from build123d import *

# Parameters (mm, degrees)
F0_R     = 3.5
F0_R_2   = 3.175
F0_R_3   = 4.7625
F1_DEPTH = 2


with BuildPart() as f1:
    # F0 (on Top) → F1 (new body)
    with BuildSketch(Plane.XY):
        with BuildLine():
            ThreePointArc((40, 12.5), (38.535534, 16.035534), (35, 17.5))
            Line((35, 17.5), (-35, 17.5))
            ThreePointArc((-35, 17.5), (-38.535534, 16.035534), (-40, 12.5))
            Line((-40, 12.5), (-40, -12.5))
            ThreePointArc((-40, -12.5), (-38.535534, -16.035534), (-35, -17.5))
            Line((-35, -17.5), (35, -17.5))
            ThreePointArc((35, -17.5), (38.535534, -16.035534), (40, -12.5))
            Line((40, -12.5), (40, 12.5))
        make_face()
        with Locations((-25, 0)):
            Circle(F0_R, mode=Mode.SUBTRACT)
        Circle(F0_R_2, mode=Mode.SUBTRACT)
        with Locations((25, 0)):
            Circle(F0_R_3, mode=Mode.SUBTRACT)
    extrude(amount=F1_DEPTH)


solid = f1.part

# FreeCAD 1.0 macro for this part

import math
import FreeCAD as App
import Part
import Sketcher

V = App.Vector
Q = App.Units.Quantity

doc = App.newDocument("Part")
params = doc.addObject("Spreadsheet::Sheet", "Params")
for row, (alias, value) in enumerate([
    ("sketch1_diameter", "7 mm"),
    ("sketch1_radius", "5 mm"),
    ("sketch1_diameter2", "6.35 mm"),
    ("sketch1_width", "70 mm"),
    ("sketch1_height", "25 mm"),
    ("pad1_length", "2 mm"),
], start=1):
    params.set(f"A{row}", alias)
    params.set(f"B{row}", "=" + value)
    params.setAlias(f"B{row}", alias)

body = doc.addObject("PartDesign::Body", "Body")

# Sketch on XY plane
sketch1 = doc.addObject("Sketcher::SketchObject", "Sketch")
body.addObject(sketch1)
sketch1.AttachmentSupport = (doc.XY_Plane, [""])
sketch1.MapMode = "FlatFace"
sketch1.addGeometry(Part.ArcOfCircle(Part.Circle(V(35, 12.5, 0), V(0, 0, 1), 5), math.radians(-0.000004), math.radians(90.000004)), False)
sketch1.addGeometry(Part.LineSegment(V(35, 17.5, 0), V(-35, 17.5, 0)), False)
sketch1.addGeometry(Part.ArcOfCircle(Part.Circle(V(-35, 12.5, 0), V(0, 0, 1), 5), math.radians(89.999996), math.radians(180.000004)), False)
sketch1.addGeometry(Part.LineSegment(V(-40, 12.5, 0), V(-40, -12.5, 0)), False)
sketch1.addGeometry(Part.ArcOfCircle(Part.Circle(V(-35, -12.5, 0), V(0, 0, 1), 5), math.radians(179.999996), math.radians(270.000004)), False)
sketch1.addGeometry(Part.LineSegment(V(-35, -17.5, 0), V(35, -17.5, 0)), False)
sketch1.addGeometry(Part.ArcOfCircle(Part.Circle(V(35, -12.5, 0), V(0, 0, 1), 5), math.radians(-90.000004), math.radians(0.000004)), False)
sketch1.addGeometry(Part.LineSegment(V(40, -12.5, 0), V(40, 12.5, 0)), False)
sketch1.addGeometry(Part.Circle(V(-25, 0, 0), V(0, 0, 1), 3.5), False)
sketch1.addGeometry(Part.Circle(V(0, 0, 0), V(0, 0, 1), 3.175), False)
sketch1.addGeometry(Part.Circle(V(25, 0, 0), V(0, 0, 1), 4.7625), False)
sketch1.addConstraint(Sketcher.Constraint("Tangent", 0, 2, 1, 1))
sketch1.addConstraint(Sketcher.Constraint("Tangent", 1, 2, 2, 1))
sketch1.addConstraint(Sketcher.Constraint("Tangent", 2, 2, 3, 1))
sketch1.addConstraint(Sketcher.Constraint("Tangent", 3, 2, 4, 1))
sketch1.addConstraint(Sketcher.Constraint("Tangent", 4, 2, 5, 1))
sketch1.addConstraint(Sketcher.Constraint("Tangent", 5, 2, 6, 1))
sketch1.addConstraint(Sketcher.Constraint("Tangent", 6, 2, 7, 1))
sketch1.addConstraint(Sketcher.Constraint("Tangent", 7, 2, 0, 1))
sketch1.addConstraint(Sketcher.Constraint("Horizontal", 1))
sketch1.addConstraint(Sketcher.Constraint("Vertical", 3))
sketch1.addConstraint(Sketcher.Constraint("Horizontal", 5))
sketch1.addConstraint(Sketcher.Constraint("Vertical", 7))
sketch1.addConstraint(Sketcher.Constraint("Coincident", 9, 3, -1, 1))
sketch1.addConstraint(Sketcher.Constraint("Equal", 0, 2))
sketch1.addConstraint(Sketcher.Constraint("Equal", 2, 4))
sketch1.addConstraint(Sketcher.Constraint("Equal", 4, 6))
sketch1.addConstraint(Sketcher.Constraint("Symmetric", 0, 3, 4, 3, -1, 1))
sketch1.addConstraint(Sketcher.Constraint("Symmetric", 8, 3, 10, 3, -1, 1))
sketch1.addConstraint(Sketcher.Constraint("PointOnObject", 8, 3, -1))
sketch1.addConstraint(Sketcher.Constraint("Diameter", 8, Q("7 mm")))
sketch1.addConstraint(Sketcher.Constraint("Radius", 0, Q("5 mm")))
sketch1.addConstraint(Sketcher.Constraint("Diameter", 9, Q("6.35 mm")))
sketch1.addConstraint(Sketcher.Constraint("DistanceX", 1, 2, 1, 1, Q("70 mm")))
sketch1.addConstraint(Sketcher.Constraint("DistanceY", 3, 2, 3, 1, Q("25 mm")))
sketch1.addConstraint(Sketcher.Constraint("Diameter", 10, Q("9.525 mm")))
sketch1.addConstraint(Sketcher.Constraint("DistanceX", 8, 3, -1, 1, Q("25 mm")))
sketch1.setExpression("Constraints[19]", "Params.sketch1_diameter")
sketch1.setExpression("Constraints[20]", "Params.sketch1_radius")
sketch1.setExpression("Constraints[21]", "Params.sketch1_diameter2")
sketch1.setExpression("Constraints[22]", "Params.sketch1_width")
sketch1.setExpression("Constraints[23]", "Params.sketch1_height")
pad1 = doc.addObject("PartDesign::Pad", "Pad")
body.addObject(pad1)
pad1.Profile = sketch1
pad1.setExpression("Length", "Params.pad1_length")

doc.recompute()
